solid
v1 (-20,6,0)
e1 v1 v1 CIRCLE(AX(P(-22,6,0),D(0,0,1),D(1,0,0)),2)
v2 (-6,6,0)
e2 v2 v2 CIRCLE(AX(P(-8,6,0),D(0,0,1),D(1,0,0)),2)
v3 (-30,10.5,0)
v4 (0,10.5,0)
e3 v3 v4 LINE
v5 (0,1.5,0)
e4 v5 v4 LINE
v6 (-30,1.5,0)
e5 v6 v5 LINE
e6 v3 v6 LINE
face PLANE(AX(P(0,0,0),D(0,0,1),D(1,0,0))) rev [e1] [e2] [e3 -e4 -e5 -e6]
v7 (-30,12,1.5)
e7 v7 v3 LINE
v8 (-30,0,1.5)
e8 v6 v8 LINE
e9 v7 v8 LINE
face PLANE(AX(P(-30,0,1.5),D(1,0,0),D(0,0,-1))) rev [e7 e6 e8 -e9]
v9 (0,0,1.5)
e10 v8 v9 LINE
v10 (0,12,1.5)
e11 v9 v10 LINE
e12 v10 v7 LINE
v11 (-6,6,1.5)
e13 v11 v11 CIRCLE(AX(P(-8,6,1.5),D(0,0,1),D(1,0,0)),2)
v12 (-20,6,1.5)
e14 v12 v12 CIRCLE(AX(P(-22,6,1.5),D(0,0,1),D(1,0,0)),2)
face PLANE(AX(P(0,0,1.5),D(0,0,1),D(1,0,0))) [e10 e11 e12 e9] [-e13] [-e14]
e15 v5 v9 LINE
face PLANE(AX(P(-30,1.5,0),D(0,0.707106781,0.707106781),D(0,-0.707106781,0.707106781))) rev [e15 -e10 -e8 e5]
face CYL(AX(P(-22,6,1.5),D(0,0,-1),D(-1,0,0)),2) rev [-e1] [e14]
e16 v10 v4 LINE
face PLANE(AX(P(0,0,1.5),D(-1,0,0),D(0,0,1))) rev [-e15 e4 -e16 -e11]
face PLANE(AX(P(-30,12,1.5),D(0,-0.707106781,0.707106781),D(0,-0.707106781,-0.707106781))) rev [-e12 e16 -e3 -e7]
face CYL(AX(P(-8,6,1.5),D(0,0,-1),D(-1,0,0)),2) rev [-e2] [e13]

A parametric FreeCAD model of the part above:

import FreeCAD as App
import Part
import Sketcher

V = App.Vector

doc = App.newDocument("Part")
params = doc.addObject("Spreadsheet::Sheet", "Params")
for row, (alias, value) in enumerate([
    ("sketch1_diameter", "4 mm"),
    ("sketch1_width", "30 mm"),
    ("sketch1_height", "12 mm"),
    ("pad1_length", "1.5 mm"),
    ("sketch2_width", "1.5 mm"),
], start=1):
    params.set(f"A{row}", alias)
    params.set(f"B{row}", "=" + value)
    params.setAlias(f"B{row}", alias)

body = doc.addObject("PartDesign::Body", "Body")

sketch1 = body.newObject("Sketcher::SketchObject", "Sketch")
sketch1.AttachmentSupport = (doc.getObject("XY_Plane"), [""])
sketch1.MapMode = "FlatFace"
sketch1.addGeometry([
    Part.LineSegment(V(-30, 12, 0), V(-30, 0, 0)),
    Part.LineSegment(V(-30, 0, 0), V(0, 0, 0)),
    Part.LineSegment(V(0, 0, 0), V(0, 12, 0)),
    Part.LineSegment(V(0, 12, 0), V(-30, 12, 0)),
    Part.Circle(V(-22, 6, 0), V(0, 0, 1), 2),
    Part.Circle(V(-8, 6, 0), V(0, 0, 1), 2),
], False)
sketch1.addConstraint([
    Sketcher.Constraint("Coincident", 0, 2, 1, 1),
    Sketcher.Constraint("Coincident", 1, 2, 2, 1),
    Sketcher.Constraint("Coincident", 2, 2, 3, 1),
    Sketcher.Constraint("Coincident", 3, 2, 0, 1),
    Sketcher.Constraint("Vertical", 0),
    Sketcher.Constraint("Horizontal", 1),
    Sketcher.Constraint("Vertical", 2),
    Sketcher.Constraint("Horizontal", 3),
    Sketcher.Constraint("Coincident", 1, 2, -1, 1),
    Sketcher.Constraint("Equal", 4, 5),
    Sketcher.Constraint("Horizontal", 4, 3, 5, 3),
    Sketcher.Constraint("Diameter", 4, 4.0),
    Sketcher.Constraint("DistanceX", 1, 1, 1, 2, 30.0),
    Sketcher.Constraint("DistanceY", 0, 2, 0, 1, 12.0),
    Sketcher.Constraint("DistanceX", 4, 3, -1, 1, 22.0),
    Sketcher.Constraint("DistanceY", -1, 1, 4, 3, 6.0),
    Sketcher.Constraint("DistanceX", 5, 3, -1, 1, 8.0),
])
sketch1.setExpression("Constraints[11]", "Params.sketch1_diameter")
sketch1.setExpression("Constraints[12]", "Params.sketch1_width")
sketch1.setExpression("Constraints[13]", "Params.sketch1_height")
pad1 = body.newObject("PartDesign::Pad", "Pad")
pad1.Profile = sketch1
pad1.setExpression("Length", "Params.pad1_length")

sketch2 = body.newObject("Sketcher::SketchObject", "Sketch001")
sketch2.AttachmentSupport = (doc.getObject("YZ_Plane"), [""])
sketch2.MapMode = "FlatFace"
sketch2.addGeometry([
    Part.LineSegment(V(12, 0, 0), V(12, 1.5, 0)),
    Part.LineSegment(V(12, 1.5, 0), V(10.5, 0, 0)),
    Part.LineSegment(V(10.5, 0, 0), V(12, 0, 0)),
    Part.LineSegment(V(0, 0, 0), V(1.5, 0, 0)),
    Part.LineSegment(V(1.5, 0, 0), V(0, 1.5, 0)),
    Part.LineSegment(V(0, 1.5, 0), V(0, 0, 0)),
], False)
sketch2.addConstraint([
    Sketcher.Constraint("Coincident", 0, 2, 1, 1),
    Sketcher.Constraint("Coincident", 1, 2, 2, 1),
    Sketcher.Constraint("Coincident", 2, 2, 0, 1),
    Sketcher.Constraint("Coincident", 3, 2, 4, 1),
    Sketcher.Constraint("Coincident", 4, 2, 5, 1),
    Sketcher.Constraint("Coincident", 5, 2, 3, 1),
    Sketcher.Constraint("Vertical", 0),
    Sketcher.Constraint("Horizontal", 2),
    Sketcher.Constraint("Horizontal", 3),
    Sketcher.Constraint("Vertical", 5),
    Sketcher.Constraint("Coincident", 5, 2, -1, 1),
    Sketcher.Constraint("PointOnObject", 1, 2, -1),
    Sketcher.Constraint("Perpendicular", 1, 4),
    Sketcher.Constraint("Horizontal", 0, 2, 4, 2),
    Sketcher.Constraint("Equal", 2, 3),
    Sketcher.Constraint("DistanceX", 2, 1, 2, 2, 1.5),
    Sketcher.Constraint("DistanceX", -1, 1, 0, 2, 12.0),
])
sketch2.setExpression("Constraints[15]", "Params.sketch2_width")
pocket1 = body.newObject("PartDesign::Pocket", "Pocket")
pocket1.Profile = sketch2
pocket1.Type = "ThroughAll"

doc.recompute()
